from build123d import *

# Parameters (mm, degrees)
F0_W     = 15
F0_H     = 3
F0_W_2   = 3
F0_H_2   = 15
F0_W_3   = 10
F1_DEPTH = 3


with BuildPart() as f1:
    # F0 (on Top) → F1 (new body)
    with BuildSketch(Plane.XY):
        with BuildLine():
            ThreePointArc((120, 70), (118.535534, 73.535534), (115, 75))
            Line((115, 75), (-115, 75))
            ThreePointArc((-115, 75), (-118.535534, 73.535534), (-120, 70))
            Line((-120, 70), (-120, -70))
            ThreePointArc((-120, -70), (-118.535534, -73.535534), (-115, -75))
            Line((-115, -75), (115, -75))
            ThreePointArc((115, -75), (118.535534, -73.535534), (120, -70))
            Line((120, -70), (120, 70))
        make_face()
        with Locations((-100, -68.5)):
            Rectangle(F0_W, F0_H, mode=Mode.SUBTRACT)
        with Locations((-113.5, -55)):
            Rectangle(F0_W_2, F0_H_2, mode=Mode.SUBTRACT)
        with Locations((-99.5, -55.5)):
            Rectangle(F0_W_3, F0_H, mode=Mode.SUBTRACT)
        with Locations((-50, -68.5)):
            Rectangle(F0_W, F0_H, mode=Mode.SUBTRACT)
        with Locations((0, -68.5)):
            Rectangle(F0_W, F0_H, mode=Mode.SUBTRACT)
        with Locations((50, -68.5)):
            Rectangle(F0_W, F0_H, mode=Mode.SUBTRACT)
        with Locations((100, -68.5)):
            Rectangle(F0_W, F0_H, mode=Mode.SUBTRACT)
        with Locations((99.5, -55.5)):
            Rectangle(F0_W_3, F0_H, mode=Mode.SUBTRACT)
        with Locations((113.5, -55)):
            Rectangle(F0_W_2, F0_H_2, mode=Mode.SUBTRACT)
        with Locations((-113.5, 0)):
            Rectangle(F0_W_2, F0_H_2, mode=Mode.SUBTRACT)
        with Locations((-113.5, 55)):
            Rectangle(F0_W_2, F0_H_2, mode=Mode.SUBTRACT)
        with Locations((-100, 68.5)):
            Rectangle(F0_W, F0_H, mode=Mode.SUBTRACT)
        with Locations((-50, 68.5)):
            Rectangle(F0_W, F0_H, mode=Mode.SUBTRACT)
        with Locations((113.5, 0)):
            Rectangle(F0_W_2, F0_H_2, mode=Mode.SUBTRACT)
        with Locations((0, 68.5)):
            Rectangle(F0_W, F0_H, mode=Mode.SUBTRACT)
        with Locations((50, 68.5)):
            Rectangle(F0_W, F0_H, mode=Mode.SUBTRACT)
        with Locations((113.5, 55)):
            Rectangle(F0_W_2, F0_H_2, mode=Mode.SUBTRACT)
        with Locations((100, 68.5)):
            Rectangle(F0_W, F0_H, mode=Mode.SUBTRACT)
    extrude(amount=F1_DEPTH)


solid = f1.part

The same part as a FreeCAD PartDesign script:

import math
import FreeCAD as App
import Part
import Sketcher
Q = App.Units.Quantity

doc = App.newDocument("Part")
body = doc.addObject("PartDesign::Body", "Body")

# Sketch on XY plane
sketch1 = body.newObject("Sketcher::SketchObject", "Sketch")
sketch1.AttachmentSupport = (doc.getObject("XY_Plane"), [""])
sketch1.MapMode = "FlatFace"
sketch1.addGeometry(Part.ArcOfCircle(Part.Circle(App.Vector(115, 70, 0), App.Vector(0, 0, 1), 5), math.radians(0), math.radians(90)), False)
sketch1.addGeometry(Part.LineSegment(App.Vector(115, 75, 0), App.Vector(-115, 75, 0)), False)
sketch1.addGeometry(Part.ArcOfCircle(Part.Circle(App.Vector(-115, 70, 0), App.Vector(0, 0, 1), 5), math.radians(90), math.radians(180)), False)
sketch1.addGeometry(Part.LineSegment(App.Vector(-120, 70, 0), App.Vector(-120, -70, 0)), False)
sketch1.addGeometry(Part.ArcOfCircle(Part.Circle(App.Vector(-115, -70, 0), App.Vector(0, 0, 1), 5), math.radians(180), math.radians(270)), False)
sketch1.addGeometry(Part.LineSegment(App.Vector(-115, -75, 0), App.Vector(115, -75, 0)), False)
sketch1.addGeometry(Part.ArcOfCircle(Part.Circle(App.Vector(115, -70, 0), App.Vector(0, 0, 1), 5), math.radians(-90), math.radians(0)), False)
sketch1.addGeometry(Part.LineSegment(App.Vector(120, -70, 0), App.Vector(120, 70, 0)), False)
sketch1.addGeometry(Part.LineSegment(App.Vector(-92.5, -70, 0), App.Vector(-107.5, -70, 0)), False)
sketch1.addGeometry(Part.LineSegment(App.Vector(-107.5, -70, 0), App.Vector(-107.5, -67, 0)), False)
sketch1.addGeometry(Part.LineSegment(App.Vector(-107.5, -67, 0), App.Vector(-92.5, -67, 0)), False)
sketch1.addGeometry(Part.LineSegment(App.Vector(-92.5, -67, 0), App.Vector(-92.5, -70, 0)), False)
sketch1.addGeometry(Part.LineSegment(App.Vector(-112, -62.5, 0), App.Vector(-115, -62.5, 0)), False)
sketch1.addGeometry(Part.LineSegment(App.Vector(-115, -62.5, 0), App.Vector(-115, -47.5, 0)), False)
sketch1.addGeometry(Part.LineSegment(App.Vector(-115, -47.5, 0), App.Vector(-112, -47.5, 0)), False)
sketch1.addGeometry(Part.LineSegment(App.Vector(-112, -47.5, 0), App.Vector(-112, -62.5, 0)), False)
sketch1.addGeometry(Part.LineSegment(App.Vector(-94.5, -57, 0), App.Vector(-104.5, -57, 0)), False)
sketch1.addGeometry(Part.LineSegment(App.Vector(-104.5, -57, 0), App.Vector(-104.5, -54, 0)), False)
sketch1.addGeometry(Part.LineSegment(App.Vector(-104.5, -54, 0), App.Vector(-94.5, -54, 0)), False)
sketch1.addGeometry(Part.LineSegment(App.Vector(-94.5, -54, 0), App.Vector(-94.5, -57, 0)), False)
sketch1.addGeometry(Part.LineSegment(App.Vector(-42.5, -70, 0), App.Vector(-57.5, -70, 0)), False)
sketch1.addGeometry(Part.LineSegment(App.Vector(-57.5, -70, 0), App.Vector(-57.5, -67, 0)), False)
sketch1.addGeometry(Part.LineSegment(App.Vector(-57.5, -67, 0), App.Vector(-42.5, -67, 0)), False)
sketch1.addGeometry(Part.LineSegment(App.Vector(-42.5, -67, 0), App.Vector(-42.5, -70, 0)), False)
sketch1.addGeometry(Part.LineSegment(App.Vector(7.5, -70, 0), App.Vector(-7.5, -70, 0)), False)
sketch1.addGeometry(Part.LineSegment(App.Vector(-7.5, -70, 0), App.Vector(-7.5, -67, 0)), False)
sketch1.addGeometry(Part.LineSegment(App.Vector(-7.5, -67, 0), App.Vector(7.5, -67, 0)), False)
sketch1.addGeometry(Part.LineSegment(App.Vector(7.5, -67, 0), App.Vector(7.5, -70, 0)), False)
sketch1.addGeometry(Part.LineSegment(App.Vector(57.5, -70, 0), App.Vector(42.5, -70, 0)), False)
sketch1.addGeometry(Part.LineSegment(App.Vector(42.5, -70, 0), App.Vector(42.5, -67, 0)), False)
sketch1.addGeometry(Part.LineSegment(App.Vector(42.5, -67, 0), App.Vector(57.5, -67, 0)), False)
sketch1.addGeometry(Part.LineSegment(App.Vector(57.5, -67, 0), App.Vector(57.5, -70, 0)), False)
sketch1.addGeometry(Part.LineSegment(App.Vector(107.5, -70, 0), App.Vector(92.5, -70, 0)), False)
sketch1.addGeometry(Part.LineSegment(App.Vector(92.5, -70, 0), App.Vector(92.5, -67, 0)), False)
sketch1.addGeometry(Part.LineSegment(App.Vector(92.5, -67, 0), App.Vector(107.5, -67, 0)), False)
sketch1.addGeometry(Part.LineSegment(App.Vector(107.5, -67, 0), App.Vector(107.5, -70, 0)), False)
sketch1.addGeometry(Part.LineSegment(App.Vector(104.5, -57, 0), App.Vector(94.5, -57, 0)), False)
sketch1.addGeometry(Part.LineSegment(App.Vector(94.5, -57, 0), App.Vector(94.5, -54, 0)), False)
sketch1.addGeometry(Part.LineSegment(App.Vector(94.5, -54, 0), App.Vector(104.5, -54, 0)), False)
sketch1.addGeometry(Part.LineSegment(App.Vector(104.5, -54, 0), App.Vector(104.5, -57, 0)), False)
sketch1.addGeometry(Part.LineSegment(App.Vector(115, -62.5, 0), App.Vector(112, -62.5, 0)), False)
sketch1.addGeometry(Part.LineSegment(App.Vector(112, -62.5, 0), App.Vector(112, -47.5, 0)), False)
sketch1.addGeometry(Part.LineSegment(App.Vector(112, -47.5, 0), App.Vector(115, -47.5, 0)), False)
sketch1.addGeometry(Part.LineSegment(App.Vector(115, -47.5, 0), App.Vector(115, -62.5, 0)), False)
sketch1.addGeometry(Part.LineSegment(App.Vector(-112, -7.5, 0), App.Vector(-115, -7.5, 0)), False)
sketch1.addGeometry(Part.LineSegment(App.Vector(-115, -7.5, 0), App.Vector(-115, 7.5, 0)), False)
sketch1.addGeometry(Part.LineSegment(App.Vector(-115, 7.5, 0), App.Vector(-112, 7.5, 0)), False)
sketch1.addGeometry(Part.LineSegment(App.Vector(-112, 7.5, 0), App.Vector(-112, -7.5, 0)), False)
sketch1.addGeometry(Part.LineSegment(App.Vector(-112, 47.5, 0), App.Vector(-115, 47.5, 0)), False)
sketch1.addGeometry(Part.LineSegment(App.Vector(-115, 47.5, 0), App.Vector(-115, 62.5, 0)), False)
sketch1.addGeometry(Part.LineSegment(App.Vector(-115, 62.5, 0), App.Vector(-112, 62.5, 0)), False)
sketch1.addGeometry(Part.LineSegment(App.Vector(-112, 62.5, 0), App.Vector(-112, 47.5, 0)), False)
sketch1.addGeometry(Part.LineSegment(App.Vector(-92.5, 67, 0), App.Vector(-107.5, 67, 0)), False)
sketch1.addGeometry(Part.LineSegment(App.Vector(-107.5, 67, 0), App.Vector(-107.5, 70, 0)), False)
sketch1.addGeometry(Part.LineSegment(App.Vector(-107.5, 70, 0), App.Vector(-92.5, 70, 0)), False)
sketch1.addGeometry(Part.LineSegment(App.Vector(-92.5, 70, 0), App.Vector(-92.5, 67, 0)), False)
sketch1.addGeometry(Part.LineSegment(App.Vector(-42.5, 67, 0), App.Vector(-57.5, 67, 0)), False)
sketch1.addGeometry(Part.LineSegment(App.Vector(-57.5, 67, 0), App.Vector(-57.5, 70, 0)), False)
sketch1.addGeometry(Part.LineSegment(App.Vector(-57.5, 70, 0), App.Vector(-42.5, 70, 0)), False)
sketch1.addGeometry(Part.LineSegment(App.Vector(-42.5, 70, 0), App.Vector(-42.5, 67, 0)), False)
sketch1.addGeometry(Part.LineSegment(App.Vector(115, -7.5, 0), App.Vector(112, -7.5, 0)), False)
sketch1.addGeometry(Part.LineSegment(App.Vector(112, -7.5, 0), App.Vector(112, 7.5, 0)), False)
sketch1.addGeometry(Part.LineSegment(App.Vector(112, 7.5, 0), App.Vector(115, 7.5, 0)), False)
sketch1.addGeometry(Part.LineSegment(App.Vector(115, 7.5, 0), App.Vector(115, -7.5, 0)), False)
sketch1.addGeometry(Part.LineSegment(App.Vector(7.5, 67, 0), App.Vector(-7.5, 67, 0)), False)
sketch1.addGeometry(Part.LineSegment(App.Vector(-7.5, 67, 0), App.Vector(-7.5, 70, 0)), False)
sketch1.addGeometry(Part.LineSegment(App.Vector(-7.5, 70, 0), App.Vector(7.5, 70, 0)), False)
sketch1.addGeometry(Part.LineSegment(App.Vector(7.5, 70, 0), App.Vector(7.5, 67, 0)), False)
sketch1.addGeometry(Part.LineSegment(App.Vector(57.5, 67, 0), App.Vector(42.5, 67, 0)), False)
sketch1.addGeometry(Part.LineSegment(App.Vector(42.5, 67, 0), App.Vector(42.5, 70, 0)), False)
sketch1.addGeometry(Part.LineSegment(App.Vector(42.5, 70, 0), App.Vector(57.5, 70, 0)), False)
sketch1.addGeometry(Part.LineSegment(App.Vector(57.5, 70, 0), App.Vector(57.5, 67, 0)), False)
sketch1.addGeometry(Part.LineSegment(App.Vector(115, 47.5, 0), App.Vector(112, 47.5, 0)), False)
sketch1.addGeometry(Part.LineSegment(App.Vector(112, 47.5, 0), App.Vector(112, 62.5, 0)), False)
sketch1.addGeometry(Part.LineSegment(App.Vector(112, 62.5, 0), App.Vector(115, 62.5, 0)), False)
sketch1.addGeometry(Part.LineSegment(App.Vector(115, 62.5, 0), App.Vector(115, 47.5, 0)), False)
sketch1.addGeometry(Part.LineSegment(App.Vector(107.5, 67, 0), App.Vector(92.5, 67, 0)), False)
sketch1.addGeometry(Part.LineSegment(App.Vector(92.5, 67, 0), App.Vector(92.5, 70, 0)), False)
sketch1.addGeometry(Part.LineSegment(App.Vector(92.5, 70, 0), App.Vector(107.5, 70, 0)), False)
sketch1.addGeometry(Part.LineSegment(App.Vector(107.5, 70, 0), App.Vector(107.5, 67, 0)), False)
sketch1.addConstraint(Sketcher.Constraint("Tangent", 0, 2, 1, 1))
sketch1.addConstraint(Sketcher.Constraint("Tangent", 1, 2, 2, 1))
sketch1.addConstraint(Sketcher.Constraint("Tangent", 2, 2, 3, 1))
sketch1.addConstraint(Sketcher.Constraint("Tangent", 3, 2, 4, 1))
sketch1.addConstraint(Sketcher.Constraint("Tangent", 4, 2, 5, 1))
sketch1.addConstraint(Sketcher.Constraint("Tangent", 5, 2, 6, 1))
sketch1.addConstraint(Sketcher.Constraint("Tangent", 6, 2, 7, 1))
sketch1.addConstraint(Sketcher.Constraint("Tangent", 7, 2, 0, 1))
sketch1.addConstraint(Sketcher.Constraint("Coincident", 8, 2, 9, 1))
sketch1.addConstraint(Sketcher.Constraint("Coincident", 9, 2, 10, 1))
sketch1.addConstraint(Sketcher.Constraint("Coincident", 10, 2, 11, 1))
sketch1.addConstraint(Sketcher.Constraint("Coincident", 11, 2, 8, 1))
sketch1.addConstraint(Sketcher.Constraint("Coincident", 12, 2, 13, 1))
sketch1.addConstraint(Sketcher.Constraint("Coincident", 13, 2, 14, 1))
sketch1.addConstraint(Sketcher.Constraint("Coincident", 14, 2, 15, 1))
sketch1.addConstraint(Sketcher.Constraint("Coincident", 15, 2, 12, 1))
sketch1.addConstraint(Sketcher.Constraint("Coincident", 16, 2, 17, 1))
sketch1.addConstraint(Sketcher.Constraint("Coincident", 17, 2, 18, 1))
sketch1.addConstraint(Sketcher.Constraint("Coincident", 18, 2, 19, 1))
sketch1.addConstraint(Sketcher.Constraint("Coincident", 19, 2, 16, 1))
sketch1.addConstraint(Sketcher.Constraint("Coincident", 20, 2, 21, 1))
sketch1.addConstraint(Sketcher.Constraint("Coincident", 21, 2, 22, 1))
sketch1.addConstraint(Sketcher.Constraint("Coincident", 22, 2, 23, 1))
sketch1.addConstraint(Sketcher.Constraint("Coincident", 23, 2, 20, 1))
sketch1.addConstraint(Sketcher.Constraint("Coincident", 24, 2, 25, 1))
sketch1.addConstraint(Sketcher.Constraint("Coincident", 25, 2, 26, 1))
sketch1.addConstraint(Sketcher.Constraint("Coincident", 26, 2, 27, 1))
sketch1.addConstraint(Sketcher.Constraint("Coincident", 27, 2, 24, 1))
sketch1.addConstraint(Sketcher.Constraint("Coincident", 28, 2, 29, 1))
sketch1.addConstraint(Sketcher.Constraint("Coincident", 29, 2, 30, 1))
sketch1.addConstraint(Sketcher.Constraint("Coincident", 30, 2, 31, 1))
sketch1.addConstraint(Sketcher.Constraint("Coincident", 31, 2, 28, 1))
sketch1.addConstraint(Sketcher.Constraint("Coincident", 32, 2, 33, 1))
sketch1.addConstraint(Sketcher.Constraint("Coincident", 33, 2, 34, 1))
sketch1.addConstraint(Sketcher.Constraint("Coincident", 34, 2, 35, 1))
sketch1.addConstraint(Sketcher.Constraint("Coincident", 35, 2, 32, 1))
sketch1.addConstraint(Sketcher.Constraint("Coincident", 36, 2, 37, 1))
sketch1.addConstraint(Sketcher.Constraint("Coincident", 37, 2, 38, 1))
sketch1.addConstraint(Sketcher.Constraint("Coincident", 38, 2, 39, 1))
sketch1.addConstraint(Sketcher.Constraint("Coincident", 39, 2, 36, 1))
sketch1.addConstraint(Sketcher.Constraint("Coincident", 40, 2, 41, 1))
sketch1.addConstraint(Sketcher.Constraint("Coincident", 41, 2, 42, 1))
sketch1.addConstraint(Sketcher.Constraint("Coincident", 42, 2, 43, 1))
sketch1.addConstraint(Sketcher.Constraint("Coincident", 43, 2, 40, 1))
sketch1.addConstraint(Sketcher.Constraint("Coincident", 44, 2, 45, 1))
sketch1.addConstraint(Sketcher.Constraint("Coincident", 45, 2, 46, 1))
sketch1.addConstraint(Sketcher.Constraint("Coincident", 46, 2, 47, 1))
sketch1.addConstraint(Sketcher.Constraint("Coincident", 47, 2, 44, 1))
sketch1.addConstraint(Sketcher.Constraint("Coincident", 48, 2, 49, 1))
sketch1.addConstraint(Sketcher.Constraint("Coincident", 49, 2, 50, 1))
sketch1.addConstraint(Sketcher.Constraint("Coincident", 50, 2, 51, 1))
sketch1.addConstraint(Sketcher.Constraint("Coincident", 51, 2, 48, 1))
sketch1.addConstraint(Sketcher.Constraint("Coincident", 52, 2, 53, 1))
sketch1.addConstraint(Sketcher.Constraint("Coincident", 53, 2, 54, 1))
sketch1.addConstraint(Sketcher.Constraint("Coincident", 54, 2, 55, 1))
sketch1.addConstraint(Sketcher.Constraint("Coincident", 55, 2, 52, 1))
sketch1.addConstraint(Sketcher.Constraint("Coincident", 56, 2, 57, 1))
sketch1.addConstraint(Sketcher.Constraint("Coincident", 57, 2, 58, 1))
sketch1.addConstraint(Sketcher.Constraint("Coincident", 58, 2, 59, 1))
sketch1.addConstraint(Sketcher.Constraint("Coincident", 59, 2, 56, 1))
sketch1.addConstraint(Sketcher.Constraint("Coincident", 60, 2, 61, 1))
sketch1.addConstraint(Sketcher.Constraint("Coincident", 61, 2, 62, 1))
sketch1.addConstraint(Sketcher.Constraint("Coincident", 62, 2, 63, 1))
sketch1.addConstraint(Sketcher.Constraint("Coincident", 63, 2, 60, 1))
sketch1.addConstraint(Sketcher.Constraint("Coincident", 64, 2, 65, 1))
sketch1.addConstraint(Sketcher.Constraint("Coincident", 65, 2, 66, 1))
sketch1.addConstraint(Sketcher.Constraint("Coincident", 66, 2, 67, 1))
sketch1.addConstraint(Sketcher.Constraint("Coincident", 67, 2, 64, 1))
sketch1.addConstraint(Sketcher.Constraint("Coincident", 68, 2, 69, 1))
sketch1.addConstraint(Sketcher.Constraint("Coincident", 69, 2, 70, 1))
sketch1.addConstraint(Sketcher.Constraint("Coincident", 70, 2, 71, 1))
sketch1.addConstraint(Sketcher.Constraint("Coincident", 71, 2, 68, 1))
sketch1.addConstraint(Sketcher.Constraint("Coincident", 72, 2, 73, 1))
sketch1.addConstraint(Sketcher.Constraint("Coincident", 73, 2, 74, 1))
sketch1.addConstraint(Sketcher.Constraint("Coincident", 74, 2, 75, 1))
sketch1.addConstraint(Sketcher.Constraint("Coincident", 75, 2, 72, 1))
sketch1.addConstraint(Sketcher.Constraint("Coincident", 76, 2, 77, 1))
sketch1.addConstraint(Sketcher.Constraint("Coincident", 77, 2, 78, 1))
sketch1.addConstraint(Sketcher.Constraint("Coincident", 78, 2, 79, 1))
sketch1.addConstraint(Sketcher.Constraint("Coincident", 79, 2, 76, 1))
sketch1.addConstraint(Sketcher.Constraint("Horizontal", 1))
sketch1.addConstraint(Sketcher.Constraint("Vertical", 3))
sketch1.addConstraint(Sketcher.Constraint("Horizontal", 5))
sketch1.addConstraint(Sketcher.Constraint("Vertical", 7))
sketch1.addConstraint(Sketcher.Constraint("Horizontal", 8))
sketch1.addConstraint(Sketcher.Constraint("Vertical", 9))
sketch1.addConstraint(Sketcher.Constraint("Horizontal", 10))
sketch1.addConstraint(Sketcher.Constraint("Vertical", 11))
sketch1.addConstraint(Sketcher.Constraint("Horizontal", 12))
sketch1.addConstraint(Sketcher.Constraint("Vertical", 13))
sketch1.addConstraint(Sketcher.Constraint("Horizontal", 14))
sketch1.addConstraint(Sketcher.Constraint("Vertical", 15))
sketch1.addConstraint(Sketcher.Constraint("Horizontal", 16))
sketch1.addConstraint(Sketcher.Constraint("Vertical", 17))
sketch1.addConstraint(Sketcher.Constraint("Horizontal", 18))
sketch1.addConstraint(Sketcher.Constraint("Vertical", 19))
sketch1.addConstraint(Sketcher.Constraint("Horizontal", 20))
sketch1.addConstraint(Sketcher.Constraint("Vertical", 21))
sketch1.addConstraint(Sketcher.Constraint("Horizontal", 22))
sketch1.addConstraint(Sketcher.Constraint("Vertical", 23))
sketch1.addConstraint(Sketcher.Constraint("Horizontal", 24))
sketch1.addConstraint(Sketcher.Constraint("Vertical", 25))
sketch1.addConstraint(Sketcher.Constraint("Horizontal", 26))
sketch1.addConstraint(Sketcher.Constraint("Vertical", 27))
sketch1.addConstraint(Sketcher.Constraint("Horizontal", 28))
sketch1.addConstraint(Sketcher.Constraint("Vertical", 29))
sketch1.addConstraint(Sketcher.Constraint("Horizontal", 30))
sketch1.addConstraint(Sketcher.Constraint("Vertical", 31))
sketch1.addConstraint(Sketcher.Constraint("Horizontal", 32))
sketch1.addConstraint(Sketcher.Constraint("Vertical", 33))
sketch1.addConstraint(Sketcher.Constraint("Horizontal", 34))
sketch1.addConstraint(Sketcher.Constraint("Vertical", 35))
sketch1.addConstraint(Sketcher.Constraint("Horizontal", 36))
sketch1.addConstraint(Sketcher.Constraint("Vertical", 37))
sketch1.addConstraint(Sketcher.Constraint("Horizontal", 38))
sketch1.addConstraint(Sketcher.Constraint("Vertical", 39))
sketch1.addConstraint(Sketcher.Constraint("Horizontal", 40))
sketch1.addConstraint(Sketcher.Constraint("Vertical", 41))
sketch1.addConstraint(Sketcher.Constraint("Horizontal", 42))
sketch1.addConstraint(Sketcher.Constraint("Vertical", 43))
sketch1.addConstraint(Sketcher.Constraint("Horizontal", 44))
sketch1.addConstraint(Sketcher.Constraint("Vertical", 45))
sketch1.addConstraint(Sketcher.Constraint("Horizontal", 46))
sketch1.addConstraint(Sketcher.Constraint("Vertical", 47))
sketch1.addConstraint(Sketcher.Constraint("Horizontal", 48))
sketch1.addConstraint(Sketcher.Constraint("Vertical", 49))
sketch1.addConstraint(Sketcher.Constraint("Horizontal", 50))
sketch1.addConstraint(Sketcher.Constraint("Vertical", 51))
sketch1.addConstraint(Sketcher.Constraint("Horizontal", 52))
sketch1.addConstraint(Sketcher.Constraint("Vertical", 53))
sketch1.addConstraint(Sketcher.Constraint("Horizontal", 54))
sketch1.addConstraint(Sketcher.Constraint("Vertical", 55))
sketch1.addConstraint(Sketcher.Constraint("Horizontal", 56))
sketch1.addConstraint(Sketcher.Constraint("Vertical", 57))
sketch1.addConstraint(Sketcher.Constraint("Horizontal", 58))
sketch1.addConstraint(Sketcher.Constraint("Vertical", 59))
sketch1.addConstraint(Sketcher.Constraint("Horizontal", 60))
sketch1.addConstraint(Sketcher.Constraint("Vertical", 61))
sketch1.addConstraint(Sketcher.Constraint("Horizontal", 62))
sketch1.addConstraint(Sketcher.Constraint("Vertical", 63))
sketch1.addConstraint(Sketcher.Constraint("Horizontal", 64))
sketch1.addConstraint(Sketcher.Constraint("Vertical", 65))
sketch1.addConstraint(Sketcher.Constraint("Horizontal", 66))
sketch1.addConstraint(Sketcher.Constraint("Vertical", 67))
sketch1.addConstraint(Sketcher.Constraint("Horizontal", 68))
sketch1.addConstraint(Sketcher.Constraint("Vertical", 69))
sketch1.addConstraint(Sketcher.Constraint("Horizontal", 70))
sketch1.addConstraint(Sketcher.Constraint("Vertical", 71))
sketch1.addConstraint(Sketcher.Constraint("Horizontal", 72))
sketch1.addConstraint(Sketcher.Constraint("Vertical", 73))
sketch1.addConstraint(Sketcher.Constraint("Horizontal", 74))
sketch1.addConstraint(Sketcher.Constraint("Vertical", 75))
sketch1.addConstraint(Sketcher.Constraint("Horizontal", 76))
sketch1.addConstraint(Sketcher.Constraint("Vertical", 77))
sketch1.addConstraint(Sketcher.Constraint("Horizontal", 78))
sketch1.addConstraint(Sketcher.Constraint("Vertical", 79))
sketch1.addConstraint(Sketcher.Constraint("Equal", 0, 2))
sketch1.addConstraint(Sketcher.Constraint("Equal", 2, 4))
sketch1.addConstraint(Sketcher.Constraint("Equal", 4, 6))
sketch1.addConstraint(Sketcher.Constraint("Symmetric", 0, 3, 4, 3, -1, 1))
sketch1.addConstraint(Sketcher.Constraint("Symmetric", 42, 2, 48, 2, -1, 1))
sketch1.addConstraint(Sketcher.Constraint("Symmetric", 40, 2, 50, 2, -1, 1))
sketch1.addConstraint(Sketcher.Constraint("Symmetric", 34, 2, 52, 2, -1, 1))
sketch1.addConstraint(Sketcher.Constraint("Symmetric", 32, 2, 54, 2, -1, 1))
sketch1.addConstraint(Sketcher.Constraint("Symmetric", 30, 2, 56, 2, -1, 1))
sketch1.addConstraint(Sketcher.Constraint("Symmetric", 28, 2, 58, 2, -1, 1))
sketch1.addConstraint(Sketcher.Constraint("Symmetric", 46, 2, 60, 2, -1, 1))
sketch1.addConstraint(Sketcher.Constraint("Symmetric", 44, 2, 62, 2, -1, 1))
sketch1.addConstraint(Sketcher.Constraint("Symmetric", 26, 2, 64, 2, -1, 1))
sketch1.addConstraint(Sketcher.Constraint("Symmetric", 24, 2, 66, 2, -1, 1))
sketch1.addConstraint(Sketcher.Constraint("Symmetric", 22, 2, 68, 2, -1, 1))
sketch1.addConstraint(Sketcher.Constraint("Symmetric", 20, 2, 70, 2, -1, 1))
sketch1.addConstraint(Sketcher.Constraint("Symmetric", 14, 2, 72, 2, -1, 1))
sketch1.addConstraint(Sketcher.Constraint("Symmetric", 12, 2, 74, 2, -1, 1))
sketch1.addConstraint(Sketcher.Constraint("Symmetric", 10, 2, 76, 2, -1, 1))
sketch1.addConstraint(Sketcher.Constraint("Symmetric", 8, 2, 78, 2, -1, 1))
sketch1.addConstraint(Sketcher.Constraint("Symmetric", 23, 2, 28, 2, -2))
sketch1.addConstraint(Sketcher.Constraint("Symmetric", 21, 2, 30, 2, -2))
sketch1.addConstraint(Sketcher.Constraint("Symmetric", 11, 2, 32, 2, -2))
sketch1.addConstraint(Sketcher.Constraint("Symmetric", 9, 2, 34, 2, -2))
sketch1.addConstraint(Sketcher.Constraint("Symmetric", 19, 2, 36, 2, -2))
sketch1.addConstraint(Sketcher.Constraint("Symmetric", 17, 2, 38, 2, -2))
sketch1.addConstraint(Sketcher.Constraint("Symmetric", 15, 2, 40, 2, -2))
sketch1.addConstraint(Sketcher.Constraint("Symmetric", 13, 2, 42, 2, -2))
sketch1.addConstraint(Sketcher.Constraint("Horizontal", 6, 2, 8, 2))
sketch1.addConstraint(Sketcher.Constraint("Horizontal", 11, 2, 20, 2))
sketch1.addConstraint(Sketcher.Constraint("Horizontal", 10, 2, 21, 2))
sketch1.addConstraint(Sketcher.Constraint("Horizontal", 23, 2, 24, 2))
sketch1.addConstraint(Sketcher.Constraint("Horizontal", 22, 2, 25, 2))
sketch1.addConstraint(Sketcher.Constraint("Horizontal", 47, 2, 60, 2))
sketch1.addConstraint(Sketcher.Constraint("Vertical", 4, 2, 12, 2))
sketch1.addConstraint(Sketcher.Constraint("Vertical", 13, 2, 44, 2))
sketch1.addConstraint(Sketcher.Constraint("Vertical", 15, 2, 46, 2))
sketch1.addConstraint(Sketcher.Constraint("Vertical", 25, 2, 64, 2))
sketch1.addConstraint(Sketcher.Constraint("Equal", 10, 20))
sketch1.addConstraint(Sketcher.Constraint("Equal", 22, 24))
sketch1.addConstraint(Sketcher.Constraint("Equal", 74, 9))
sketch1.addConstraint(Sketcher.Constraint("Equal", 78, 13))
sketch1.addConstraint(Sketcher.Constraint("Equal", 11, 17))
sketch1.addConstraint(Sketcher.Constraint("Equal", 43, 45))
sketch1.addConstraint(Sketcher.Constraint("Radius", 0, Q("5 mm")))
sketch1.addConstraint(Sketcher.Constraint("DistanceX", 1, 2, 1, 1, Q("230 mm")))
sketch1.addConstraint(Sketcher.Constraint("DistanceX", 8, 2, 8, 1, Q("15 mm")))
sketch1.addConstraint(Sketcher.Constraint("DistanceX", 12, 2, 12, 1, Q("3 mm")))
sketch1.addConstraint(Sketcher.Constraint("DistanceX", 16, 2, 16, 1, Q("10 mm")))
sketch1.addConstraint(Sketcher.Constraint("DistanceY", 3, 2, 3, 1, Q("140 mm")))
sketch1.addConstraint(Sketcher.Constraint("DistanceY", 16, 2, -1, 1, Q("57 mm")))
sketch1.addConstraint(Sketcher.Constraint("DistanceX", 8, 2, -1, 1, Q("107.5 mm")))
sketch1.addConstraint(Sketcher.Constraint("DistanceY", 12, 2, -1, 1, Q("62.5 mm")))
sketch1.addConstraint(Sketcher.Constraint("DistanceX", 16, 2, -1, 1, Q("104.5 mm")))
sketch1.addConstraint(Sketcher.Constraint("DistanceX", 20, 2, -1, 1, Q("57.5 mm")))
pad1 = body.newObject("PartDesign::Pad", "Pad")
pad1.Profile = sketch1
pad1.Length = 3

doc.recompute()
